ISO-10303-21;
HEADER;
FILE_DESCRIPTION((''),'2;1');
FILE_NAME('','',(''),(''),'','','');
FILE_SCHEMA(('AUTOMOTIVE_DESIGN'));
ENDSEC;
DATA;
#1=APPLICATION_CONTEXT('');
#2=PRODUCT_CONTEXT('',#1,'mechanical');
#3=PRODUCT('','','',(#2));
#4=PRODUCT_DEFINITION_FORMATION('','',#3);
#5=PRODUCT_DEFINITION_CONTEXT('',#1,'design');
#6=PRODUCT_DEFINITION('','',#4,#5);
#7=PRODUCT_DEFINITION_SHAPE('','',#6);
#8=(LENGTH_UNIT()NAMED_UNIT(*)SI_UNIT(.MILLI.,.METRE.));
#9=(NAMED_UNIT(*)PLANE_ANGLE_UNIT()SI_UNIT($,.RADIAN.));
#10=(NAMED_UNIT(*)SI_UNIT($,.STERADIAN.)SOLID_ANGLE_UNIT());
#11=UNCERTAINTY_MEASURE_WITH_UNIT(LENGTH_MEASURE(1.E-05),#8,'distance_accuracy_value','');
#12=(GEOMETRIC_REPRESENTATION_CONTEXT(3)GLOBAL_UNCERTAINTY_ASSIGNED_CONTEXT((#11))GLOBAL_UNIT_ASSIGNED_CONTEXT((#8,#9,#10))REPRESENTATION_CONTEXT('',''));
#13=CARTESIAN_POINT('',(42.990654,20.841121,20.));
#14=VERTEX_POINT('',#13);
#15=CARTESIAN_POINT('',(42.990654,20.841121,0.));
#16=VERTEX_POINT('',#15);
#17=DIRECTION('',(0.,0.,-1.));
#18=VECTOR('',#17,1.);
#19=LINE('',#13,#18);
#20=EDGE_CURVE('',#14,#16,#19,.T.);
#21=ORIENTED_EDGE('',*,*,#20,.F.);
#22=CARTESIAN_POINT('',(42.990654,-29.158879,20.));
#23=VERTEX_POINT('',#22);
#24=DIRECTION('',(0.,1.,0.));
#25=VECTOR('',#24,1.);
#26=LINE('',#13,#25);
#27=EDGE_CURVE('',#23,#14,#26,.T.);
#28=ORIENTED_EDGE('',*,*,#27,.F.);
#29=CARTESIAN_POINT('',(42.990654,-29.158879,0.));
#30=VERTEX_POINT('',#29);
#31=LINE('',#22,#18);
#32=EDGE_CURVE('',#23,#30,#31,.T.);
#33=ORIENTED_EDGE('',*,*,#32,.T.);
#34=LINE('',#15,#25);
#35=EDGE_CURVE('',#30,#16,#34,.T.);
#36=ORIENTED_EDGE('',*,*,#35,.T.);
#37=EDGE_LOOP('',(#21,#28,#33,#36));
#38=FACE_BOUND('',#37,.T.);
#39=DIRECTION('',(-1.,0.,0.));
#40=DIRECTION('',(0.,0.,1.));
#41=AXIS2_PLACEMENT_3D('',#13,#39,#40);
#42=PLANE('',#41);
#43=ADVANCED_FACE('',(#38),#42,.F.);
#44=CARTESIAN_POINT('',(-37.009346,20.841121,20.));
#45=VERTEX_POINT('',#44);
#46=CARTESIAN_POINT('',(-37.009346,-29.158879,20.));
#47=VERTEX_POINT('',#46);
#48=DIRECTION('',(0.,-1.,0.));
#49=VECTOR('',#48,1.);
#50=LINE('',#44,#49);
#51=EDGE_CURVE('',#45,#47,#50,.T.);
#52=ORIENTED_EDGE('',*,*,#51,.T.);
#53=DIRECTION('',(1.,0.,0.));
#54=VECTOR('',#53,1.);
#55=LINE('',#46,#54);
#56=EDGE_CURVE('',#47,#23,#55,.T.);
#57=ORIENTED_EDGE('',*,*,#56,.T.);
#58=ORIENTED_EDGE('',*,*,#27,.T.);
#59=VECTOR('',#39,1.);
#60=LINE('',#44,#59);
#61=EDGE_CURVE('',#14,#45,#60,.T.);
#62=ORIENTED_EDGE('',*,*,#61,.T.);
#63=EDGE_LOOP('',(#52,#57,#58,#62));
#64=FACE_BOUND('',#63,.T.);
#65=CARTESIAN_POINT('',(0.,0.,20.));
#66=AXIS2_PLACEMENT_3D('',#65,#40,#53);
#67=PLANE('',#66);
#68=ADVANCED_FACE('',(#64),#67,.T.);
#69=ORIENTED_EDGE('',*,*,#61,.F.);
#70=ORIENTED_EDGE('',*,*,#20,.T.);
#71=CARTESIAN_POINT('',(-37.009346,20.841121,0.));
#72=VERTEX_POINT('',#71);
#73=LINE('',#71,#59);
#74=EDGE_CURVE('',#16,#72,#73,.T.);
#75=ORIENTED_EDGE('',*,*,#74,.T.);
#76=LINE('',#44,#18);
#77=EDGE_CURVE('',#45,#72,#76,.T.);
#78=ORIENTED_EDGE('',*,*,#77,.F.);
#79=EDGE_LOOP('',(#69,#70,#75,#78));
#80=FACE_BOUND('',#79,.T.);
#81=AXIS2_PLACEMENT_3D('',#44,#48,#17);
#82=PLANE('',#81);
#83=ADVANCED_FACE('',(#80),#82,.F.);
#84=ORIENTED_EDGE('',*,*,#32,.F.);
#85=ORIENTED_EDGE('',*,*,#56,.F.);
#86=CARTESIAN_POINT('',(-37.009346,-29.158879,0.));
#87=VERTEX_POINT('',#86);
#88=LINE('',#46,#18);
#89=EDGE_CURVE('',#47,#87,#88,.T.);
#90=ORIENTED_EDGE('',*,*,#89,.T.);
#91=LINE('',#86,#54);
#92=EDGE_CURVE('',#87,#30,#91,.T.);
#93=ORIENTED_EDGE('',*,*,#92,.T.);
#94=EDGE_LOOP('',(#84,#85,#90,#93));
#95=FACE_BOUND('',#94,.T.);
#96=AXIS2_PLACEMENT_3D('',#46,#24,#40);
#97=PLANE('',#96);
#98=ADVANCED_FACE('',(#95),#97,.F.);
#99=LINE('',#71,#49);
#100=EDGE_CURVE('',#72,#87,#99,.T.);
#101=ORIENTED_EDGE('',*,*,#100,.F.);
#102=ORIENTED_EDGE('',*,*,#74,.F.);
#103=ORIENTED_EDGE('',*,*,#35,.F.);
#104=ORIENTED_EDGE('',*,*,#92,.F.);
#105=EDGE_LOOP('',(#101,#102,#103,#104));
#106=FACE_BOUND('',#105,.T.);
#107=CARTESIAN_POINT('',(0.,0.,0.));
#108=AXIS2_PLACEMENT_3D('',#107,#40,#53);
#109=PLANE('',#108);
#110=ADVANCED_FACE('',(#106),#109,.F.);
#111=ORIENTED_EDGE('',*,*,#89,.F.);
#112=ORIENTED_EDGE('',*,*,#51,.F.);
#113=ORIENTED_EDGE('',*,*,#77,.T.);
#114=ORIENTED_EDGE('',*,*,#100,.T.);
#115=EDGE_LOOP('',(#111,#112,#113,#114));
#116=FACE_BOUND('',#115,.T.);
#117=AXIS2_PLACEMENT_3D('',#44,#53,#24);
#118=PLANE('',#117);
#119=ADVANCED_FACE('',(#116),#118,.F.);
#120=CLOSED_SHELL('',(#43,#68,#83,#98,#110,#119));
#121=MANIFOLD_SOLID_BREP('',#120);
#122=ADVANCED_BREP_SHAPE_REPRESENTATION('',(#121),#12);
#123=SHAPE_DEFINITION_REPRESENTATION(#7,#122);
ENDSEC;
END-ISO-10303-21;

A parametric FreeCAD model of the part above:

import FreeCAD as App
import Part
import Sketcher

V = App.Vector
Q = App.Units.Quantity


def add_polygon(sketch, points):
    """Adds a closed chain of lines whose ends are joined by coincident constraints."""
    first, n = sketch.GeometryCount, len(points)
    for a, b in zip(points, points[1:] + points[:1]):
        sketch.addGeometry(Part.LineSegment(App.Vector(*a, 0), App.Vector(*b, 0)), False)
    for i in range(n):
        sketch.addConstraint(Sketcher.Constraint("Coincident", first + i, 2, first + (i + 1) % n, 1))

doc = App.newDocument("Part")
params = doc.addObject("Spreadsheet::Sheet", "Params")
for row, (alias, value) in enumerate([
    ("sketch1_width", "80 mm"),
    ("sketch1_height", "50 mm"),
    ("pad1_length", "20 mm"),
], start=1):
    params.set(f"A{row}", alias)
    params.set(f"B{row}", "=" + value)
    params.setAlias(f"B{row}", alias)

body = doc.addObject("PartDesign::Body", "Body")

# Sketch on XY plane
sketch1 = doc.addObject("Sketcher::SketchObject", "Sketch")
body.addObject(sketch1)
sketch1.AttachmentSupport = (doc.XY_Plane, [""])
sketch1.MapMode = "FlatFace"
add_polygon(sketch1, [(-37, 21), (-37, -29), (43, -29), (43, 21)])  # lines 0-3
sketch1.addConstraint(Sketcher.Constraint("Vertical", 0))
sketch1.addConstraint(Sketcher.Constraint("Horizontal", 1))
sketch1.addConstraint(Sketcher.Constraint("Vertical", 2))
sketch1.addConstraint(Sketcher.Constraint("Horizontal", 3))
sketch1.addConstraint(Sketcher.Constraint("DistanceX", 1, 1, 1, 2, Q("80 mm")))
sketch1.addConstraint(Sketcher.Constraint("DistanceY", 0, 2, 0, 1, Q("50 mm")))
sketch1.addConstraint(Sketcher.Constraint("DistanceY", 0, 2, -1, 1, Q("29.158879 mm")))
sketch1.addConstraint(Sketcher.Constraint("DistanceX", 0, 2, -1, 1, Q("37.009346 mm")))
sketch1.setExpression("Constraints[8]", "Params.sketch1_width")
sketch1.setExpression("Constraints[9]", "Params.sketch1_height")
pad1 = doc.addObject("PartDesign::Pad", "Pad")
body.addObject(pad1)
pad1.Profile = sketch1
pad1.setExpression("Length", "Params.pad1_length")

doc.recompute()
